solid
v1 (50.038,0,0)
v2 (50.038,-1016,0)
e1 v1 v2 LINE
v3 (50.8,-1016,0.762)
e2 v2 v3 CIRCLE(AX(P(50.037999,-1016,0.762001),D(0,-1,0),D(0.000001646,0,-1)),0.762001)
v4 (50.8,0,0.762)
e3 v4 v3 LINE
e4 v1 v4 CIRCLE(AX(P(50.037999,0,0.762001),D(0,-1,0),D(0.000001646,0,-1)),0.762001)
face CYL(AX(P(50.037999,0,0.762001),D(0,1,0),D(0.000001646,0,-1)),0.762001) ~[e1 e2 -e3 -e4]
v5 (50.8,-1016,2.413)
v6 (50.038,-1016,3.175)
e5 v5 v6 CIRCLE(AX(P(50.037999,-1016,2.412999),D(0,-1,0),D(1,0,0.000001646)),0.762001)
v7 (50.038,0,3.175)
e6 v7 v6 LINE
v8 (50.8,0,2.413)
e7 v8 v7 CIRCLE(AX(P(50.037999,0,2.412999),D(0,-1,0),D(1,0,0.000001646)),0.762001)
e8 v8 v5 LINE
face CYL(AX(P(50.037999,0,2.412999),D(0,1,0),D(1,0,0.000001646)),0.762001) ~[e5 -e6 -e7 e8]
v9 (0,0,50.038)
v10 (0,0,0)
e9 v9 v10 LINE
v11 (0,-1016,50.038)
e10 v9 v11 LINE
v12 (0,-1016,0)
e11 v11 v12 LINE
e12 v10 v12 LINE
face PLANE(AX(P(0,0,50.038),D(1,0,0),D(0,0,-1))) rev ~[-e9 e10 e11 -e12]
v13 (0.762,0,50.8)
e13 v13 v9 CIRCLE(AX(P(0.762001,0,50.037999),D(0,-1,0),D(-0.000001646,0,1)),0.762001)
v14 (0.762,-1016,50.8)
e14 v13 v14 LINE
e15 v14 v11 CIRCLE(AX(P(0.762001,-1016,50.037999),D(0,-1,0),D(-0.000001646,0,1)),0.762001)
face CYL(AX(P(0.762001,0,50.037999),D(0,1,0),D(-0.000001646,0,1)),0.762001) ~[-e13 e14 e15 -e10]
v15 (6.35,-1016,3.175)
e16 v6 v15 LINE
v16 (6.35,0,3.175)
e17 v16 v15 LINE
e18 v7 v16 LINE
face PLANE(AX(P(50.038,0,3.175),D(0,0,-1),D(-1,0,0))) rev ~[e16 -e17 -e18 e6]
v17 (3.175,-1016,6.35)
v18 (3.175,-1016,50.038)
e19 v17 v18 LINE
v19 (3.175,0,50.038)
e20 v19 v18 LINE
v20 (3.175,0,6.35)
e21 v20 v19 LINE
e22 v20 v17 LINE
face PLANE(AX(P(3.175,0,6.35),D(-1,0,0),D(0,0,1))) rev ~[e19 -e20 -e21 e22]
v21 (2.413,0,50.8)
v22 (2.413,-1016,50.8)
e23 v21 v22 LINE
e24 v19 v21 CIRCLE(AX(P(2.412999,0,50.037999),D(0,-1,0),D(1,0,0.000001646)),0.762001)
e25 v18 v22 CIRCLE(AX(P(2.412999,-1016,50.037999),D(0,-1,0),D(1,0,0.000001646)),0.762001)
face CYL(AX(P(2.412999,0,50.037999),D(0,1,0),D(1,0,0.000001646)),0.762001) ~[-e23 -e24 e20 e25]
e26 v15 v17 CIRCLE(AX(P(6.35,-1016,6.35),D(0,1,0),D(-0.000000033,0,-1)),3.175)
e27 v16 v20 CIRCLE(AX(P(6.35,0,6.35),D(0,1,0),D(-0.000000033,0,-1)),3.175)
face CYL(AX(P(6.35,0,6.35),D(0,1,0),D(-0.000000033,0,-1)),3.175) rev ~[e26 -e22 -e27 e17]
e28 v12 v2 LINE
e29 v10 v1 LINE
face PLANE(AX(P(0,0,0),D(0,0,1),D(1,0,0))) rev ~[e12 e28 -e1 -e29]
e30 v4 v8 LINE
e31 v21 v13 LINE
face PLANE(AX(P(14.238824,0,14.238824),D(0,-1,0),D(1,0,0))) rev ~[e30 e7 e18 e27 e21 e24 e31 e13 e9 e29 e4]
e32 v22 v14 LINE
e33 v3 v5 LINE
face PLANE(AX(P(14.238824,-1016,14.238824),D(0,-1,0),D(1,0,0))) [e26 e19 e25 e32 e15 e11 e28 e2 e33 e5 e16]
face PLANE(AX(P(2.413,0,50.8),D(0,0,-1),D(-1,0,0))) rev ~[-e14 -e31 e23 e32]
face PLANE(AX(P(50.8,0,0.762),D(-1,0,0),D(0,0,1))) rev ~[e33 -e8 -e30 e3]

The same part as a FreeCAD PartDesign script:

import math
import FreeCAD as App
import Part
import Sketcher
Q = App.Units.Quantity

doc = App.newDocument("Part")
body = doc.addObject("PartDesign::Body", "Body")

# Sketch on XZ plane
sketch1 = body.newObject("Sketcher::SketchObject", "Sketch")
sketch1.AttachmentSupport = (doc.getObject("XZ_Plane"), [""])
sketch1.MapMode = "FlatFace"
sketch1.addGeometry([
    Part.LineSegment(App.Vector(0, 50, 0), App.Vector(0, 0, 0)),  # 0
    Part.LineSegment(App.Vector(0, 0, 0), App.Vector(50, 0, 0)),  # 1
    Part.ArcOfCircle(Part.Circle(App.Vector(50, 0.8, 0), App.Vector(0, 0, 1), 0.8), math.radians(-90), math.radians(0)),  # 2
    Part.LineSegment(App.Vector(50.8, 0.8, 0), App.Vector(50.8, 2.4, 0)),  # 3
    Part.ArcOfCircle(Part.Circle(App.Vector(50, 2.4, 0), App.Vector(0, 0, 1), 0.8), math.radians(0), math.radians(90)),  # 4
    Part.LineSegment(App.Vector(50, 3.2, 0), App.Vector(6.3, 3.2, 0)),  # 5
    Part.ArcOfCircle(Part.Circle(App.Vector(6.4, 6.4, 0), App.Vector(0, 0, 1), 3.2), math.radians(-180), math.radians(-90)),  # 6
    Part.LineSegment(App.Vector(3.2, 6.3, 0), App.Vector(3.2, 50, 0)),  # 7
    Part.ArcOfCircle(Part.Circle(App.Vector(2.4, 50, 0), App.Vector(0, 0, 1), 0.8), math.radians(0), math.radians(90)),  # 8
    Part.LineSegment(App.Vector(2.4, 50.8, 0), App.Vector(0.8, 50.8, 0)),  # 9
    Part.ArcOfCircle(Part.Circle(App.Vector(0.8, 50, 0), App.Vector(0, 0, 1), 0.8), math.radians(90), math.radians(180)),  # 10
], False)
sketch1.addConstraint([
    Sketcher.Constraint("Coincident", 0, 2, 1, 1),
    Sketcher.Constraint("Tangent", 1, 2, 2, 1),
    Sketcher.Constraint("Tangent", 2, 2, 3, 1),
    Sketcher.Constraint("Tangent", 3, 2, 4, 1),
    Sketcher.Constraint("Tangent", 4, 2, 5, 1),
    Sketcher.Constraint("Tangent", 5, 2, 6, 2),
    Sketcher.Constraint("Tangent", 6, 1, 7, 1),
    Sketcher.Constraint("Tangent", 7, 2, 8, 1),
    Sketcher.Constraint("Tangent", 8, 2, 9, 1),
    Sketcher.Constraint("Tangent", 9, 2, 10, 1),
    Sketcher.Constraint("Tangent", 10, 2, 0, 1),
    Sketcher.Constraint("Vertical", 0),
    Sketcher.Constraint("Horizontal", 1),
    Sketcher.Constraint("Vertical", 3),
    Sketcher.Constraint("Horizontal", 5),
    Sketcher.Constraint("Vertical", 7),
    Sketcher.Constraint("Horizontal", 9),
    Sketcher.Constraint("Coincident", 0, 2, -1, 1),
    Sketcher.Constraint("Equal", 2, 4),
    Sketcher.Constraint("Equal", 4, 8),
    Sketcher.Constraint("Equal", 8, 10),
    Sketcher.Constraint("Equal", 1, 0),
    Sketcher.Constraint("Equal", 9, 3),
    Sketcher.Constraint("Radius", 2, Q("0.03 in")),
    Sketcher.Constraint("DistanceX", -1, 1, 2, 2, Q("2 in")),
    Sketcher.Constraint("Radius", 6, Q("0.125 in")),
    Sketcher.Constraint("DistanceX", 5, 2, 5, 1, Q("1.72 in")),
])
pad1 = body.newObject("PartDesign::Pad", "Pad")
pad1.Profile = sketch1
pad1.Length = Q("40 in")

doc.recompute()
